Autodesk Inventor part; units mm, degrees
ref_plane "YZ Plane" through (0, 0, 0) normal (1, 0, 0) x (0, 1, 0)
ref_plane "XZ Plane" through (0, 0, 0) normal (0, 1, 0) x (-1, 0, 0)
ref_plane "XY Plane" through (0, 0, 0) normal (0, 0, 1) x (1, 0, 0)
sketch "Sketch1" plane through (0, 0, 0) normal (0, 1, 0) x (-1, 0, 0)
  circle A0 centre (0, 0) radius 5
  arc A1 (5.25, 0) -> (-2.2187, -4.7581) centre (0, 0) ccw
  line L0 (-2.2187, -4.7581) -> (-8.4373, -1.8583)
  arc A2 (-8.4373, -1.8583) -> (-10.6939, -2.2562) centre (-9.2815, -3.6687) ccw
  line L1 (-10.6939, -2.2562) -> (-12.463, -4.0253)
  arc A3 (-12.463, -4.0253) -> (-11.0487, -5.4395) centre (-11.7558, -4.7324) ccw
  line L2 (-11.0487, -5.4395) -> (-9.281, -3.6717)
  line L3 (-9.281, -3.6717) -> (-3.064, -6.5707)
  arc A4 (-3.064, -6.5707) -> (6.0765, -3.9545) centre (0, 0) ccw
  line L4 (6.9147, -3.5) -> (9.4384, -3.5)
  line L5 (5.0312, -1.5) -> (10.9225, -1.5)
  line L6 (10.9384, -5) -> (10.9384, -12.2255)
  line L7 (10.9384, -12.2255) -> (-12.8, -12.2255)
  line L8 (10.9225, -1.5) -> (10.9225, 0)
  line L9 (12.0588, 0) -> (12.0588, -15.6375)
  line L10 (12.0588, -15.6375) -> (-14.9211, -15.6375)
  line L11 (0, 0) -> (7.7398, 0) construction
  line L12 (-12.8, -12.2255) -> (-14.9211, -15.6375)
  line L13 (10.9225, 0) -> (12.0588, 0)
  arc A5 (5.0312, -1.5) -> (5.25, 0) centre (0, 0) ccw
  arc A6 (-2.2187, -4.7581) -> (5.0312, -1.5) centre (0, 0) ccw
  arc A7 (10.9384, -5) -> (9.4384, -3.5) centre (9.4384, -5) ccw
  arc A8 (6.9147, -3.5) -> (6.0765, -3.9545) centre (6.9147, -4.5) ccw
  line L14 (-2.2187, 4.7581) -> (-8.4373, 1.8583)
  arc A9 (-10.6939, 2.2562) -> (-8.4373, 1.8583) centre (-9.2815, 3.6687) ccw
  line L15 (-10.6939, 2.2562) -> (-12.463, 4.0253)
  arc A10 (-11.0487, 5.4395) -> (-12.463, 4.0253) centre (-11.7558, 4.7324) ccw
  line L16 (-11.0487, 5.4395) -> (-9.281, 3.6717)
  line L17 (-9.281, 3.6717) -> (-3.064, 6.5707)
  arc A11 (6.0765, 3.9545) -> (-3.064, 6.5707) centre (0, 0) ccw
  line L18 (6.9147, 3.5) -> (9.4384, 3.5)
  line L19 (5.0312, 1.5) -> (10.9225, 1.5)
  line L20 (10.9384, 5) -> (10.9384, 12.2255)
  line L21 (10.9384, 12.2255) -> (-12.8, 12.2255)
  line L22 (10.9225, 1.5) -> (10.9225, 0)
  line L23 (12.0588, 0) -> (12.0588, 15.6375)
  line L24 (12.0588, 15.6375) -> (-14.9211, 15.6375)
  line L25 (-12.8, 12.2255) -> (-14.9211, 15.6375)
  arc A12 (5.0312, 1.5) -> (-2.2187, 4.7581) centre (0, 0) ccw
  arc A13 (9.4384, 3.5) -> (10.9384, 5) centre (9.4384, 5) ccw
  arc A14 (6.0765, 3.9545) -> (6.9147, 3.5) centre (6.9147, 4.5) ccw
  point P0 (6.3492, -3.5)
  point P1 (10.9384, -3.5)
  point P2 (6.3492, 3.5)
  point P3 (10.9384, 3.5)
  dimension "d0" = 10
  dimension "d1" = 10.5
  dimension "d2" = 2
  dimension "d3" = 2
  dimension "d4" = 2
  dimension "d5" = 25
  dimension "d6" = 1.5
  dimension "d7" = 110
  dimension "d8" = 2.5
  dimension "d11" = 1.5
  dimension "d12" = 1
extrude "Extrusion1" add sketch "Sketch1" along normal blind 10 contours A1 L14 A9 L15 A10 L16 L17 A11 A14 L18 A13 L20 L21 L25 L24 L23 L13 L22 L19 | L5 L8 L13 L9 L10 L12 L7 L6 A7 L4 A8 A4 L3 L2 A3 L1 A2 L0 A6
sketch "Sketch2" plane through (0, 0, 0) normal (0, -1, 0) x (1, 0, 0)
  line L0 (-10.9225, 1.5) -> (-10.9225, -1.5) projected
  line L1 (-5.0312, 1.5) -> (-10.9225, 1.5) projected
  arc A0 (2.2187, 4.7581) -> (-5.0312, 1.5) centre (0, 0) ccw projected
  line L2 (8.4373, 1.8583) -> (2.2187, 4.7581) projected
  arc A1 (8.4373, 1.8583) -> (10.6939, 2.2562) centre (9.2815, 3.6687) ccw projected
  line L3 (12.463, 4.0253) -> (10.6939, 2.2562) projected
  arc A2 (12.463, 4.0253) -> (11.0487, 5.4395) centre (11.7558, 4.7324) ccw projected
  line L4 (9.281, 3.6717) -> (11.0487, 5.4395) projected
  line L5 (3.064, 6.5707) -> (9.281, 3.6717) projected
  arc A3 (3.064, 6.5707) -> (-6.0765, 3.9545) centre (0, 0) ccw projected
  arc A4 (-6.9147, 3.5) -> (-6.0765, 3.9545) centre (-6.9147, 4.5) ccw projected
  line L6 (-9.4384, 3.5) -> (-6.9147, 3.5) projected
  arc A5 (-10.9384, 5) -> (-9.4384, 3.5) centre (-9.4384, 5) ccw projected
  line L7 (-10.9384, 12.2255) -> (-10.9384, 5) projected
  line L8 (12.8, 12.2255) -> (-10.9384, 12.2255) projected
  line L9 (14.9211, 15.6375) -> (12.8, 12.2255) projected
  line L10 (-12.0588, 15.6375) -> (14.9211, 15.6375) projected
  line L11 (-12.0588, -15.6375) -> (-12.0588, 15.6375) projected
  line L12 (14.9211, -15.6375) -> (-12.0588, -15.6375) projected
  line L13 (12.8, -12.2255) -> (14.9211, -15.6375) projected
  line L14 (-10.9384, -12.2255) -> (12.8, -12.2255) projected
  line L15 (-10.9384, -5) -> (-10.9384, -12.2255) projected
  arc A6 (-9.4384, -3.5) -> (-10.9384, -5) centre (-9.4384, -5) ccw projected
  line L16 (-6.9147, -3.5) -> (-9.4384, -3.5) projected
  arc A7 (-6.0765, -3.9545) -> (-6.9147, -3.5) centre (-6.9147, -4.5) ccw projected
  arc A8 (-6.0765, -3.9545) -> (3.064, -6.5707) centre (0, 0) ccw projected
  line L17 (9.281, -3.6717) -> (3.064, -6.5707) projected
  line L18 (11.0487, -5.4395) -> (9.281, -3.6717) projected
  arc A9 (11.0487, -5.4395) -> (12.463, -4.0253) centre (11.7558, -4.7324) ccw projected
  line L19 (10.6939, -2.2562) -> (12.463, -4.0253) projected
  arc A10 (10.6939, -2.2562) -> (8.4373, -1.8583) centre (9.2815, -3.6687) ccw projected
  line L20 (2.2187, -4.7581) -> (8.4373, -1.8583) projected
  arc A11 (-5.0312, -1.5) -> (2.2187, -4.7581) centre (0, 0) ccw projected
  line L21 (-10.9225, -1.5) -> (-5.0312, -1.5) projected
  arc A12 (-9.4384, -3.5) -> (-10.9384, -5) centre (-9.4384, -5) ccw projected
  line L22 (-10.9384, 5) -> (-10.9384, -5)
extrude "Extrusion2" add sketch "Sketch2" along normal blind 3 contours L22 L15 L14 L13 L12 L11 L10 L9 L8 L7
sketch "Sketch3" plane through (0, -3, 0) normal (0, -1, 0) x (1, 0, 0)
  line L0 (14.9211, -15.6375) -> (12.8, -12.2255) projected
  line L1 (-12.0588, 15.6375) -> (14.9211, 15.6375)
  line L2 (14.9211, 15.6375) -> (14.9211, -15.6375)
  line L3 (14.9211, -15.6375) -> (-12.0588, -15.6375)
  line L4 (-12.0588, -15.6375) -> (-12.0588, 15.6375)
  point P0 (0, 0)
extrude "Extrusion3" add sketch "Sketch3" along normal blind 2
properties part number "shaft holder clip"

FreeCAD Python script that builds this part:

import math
import FreeCAD as App
import Part
import Sketcher

V = App.Vector
Q = App.Units.Quantity

doc = App.newDocument("Part")
body = doc.addObject("PartDesign::Body", "Body")

# Sketch on XZ plane
sketch1 = body.newObject("Sketcher::SketchObject", "Sketch")
sketch1.AttachmentSupport = (doc.getObject("XZ_Plane"), [""])
sketch1.MapMode = "FlatFace"
sketch1.addGeometry(Part.ArcOfCircle(Part.Circle(V(0, 0, 0), V(0, 0, 1), 5.2), math.radians(65), math.radians(163)), False)
sketch1.addGeometry(Part.LineSegment(V(-5, 1.5, 0), V(-10.9, 1.5, 0)), False)
sketch1.addGeometry(Part.LineSegment(V(-10.9, 1.5, 0), V(-10.9, -1.5, 0)), False)
sketch1.addGeometry(Part.LineSegment(V(-10.9, -1.5, 0), V(-5, -1.5, 0)), False)
sketch1.addGeometry(Part.ArcOfCircle(Part.Circle(V(0, 0, 0), V(0, 0, 1), 5.3), math.radians(-163), math.radians(-65)), False)
sketch1.addGeometry(Part.LineSegment(V(2.2, -4.8, 0), V(8.4, -1.9, 0)), False)
sketch1.addGeometry(Part.ArcOfCircle(Part.Circle(V(9.3, -3.7, 0), V(0, 0, 1), 2), math.radians(45), math.radians(115)), False)
sketch1.addGeometry(Part.LineSegment(V(10.7, -2.3, 0), V(12.5, -4, 0)), False)
sketch1.addGeometry(Part.ArcOfCircle(Part.Circle(V(11.8, -4.7, 0), V(0, 0, 1), 1), math.radians(-135), math.radians(45)), False)
sketch1.addGeometry(Part.LineSegment(V(11, -5.4, 0), V(9.3, -3.7, 0)), False)
sketch1.addGeometry(Part.LineSegment(V(9.3, -3.7, 0), V(3.1, -6.6, 0)), False)
sketch1.addGeometry(Part.ArcOfCircle(Part.Circle(V(0, 0, 0), V(0, 0, 1), 7.2), math.radians(-147), math.radians(-65)), False)
sketch1.addGeometry(Part.ArcOfCircle(Part.Circle(V(-6.9, -4.5, 0), V(0, 0, 1), 1), math.radians(33), math.radians(90)), False)
sketch1.addGeometry(Part.LineSegment(V(-6.9, -3.5, 0), V(-9.4, -3.5, 0)), False)
sketch1.addGeometry(Part.ArcOfCircle(Part.Circle(V(-9.4, -5, 0), V(0, 0, 1), 1.5), math.radians(90), math.radians(180)), False)
sketch1.addGeometry(Part.LineSegment(V(-10.9, -5, 0), V(-10.9, -12.2, 0)), False)
sketch1.addGeometry(Part.LineSegment(V(-10.9, -12.2, 0), V(12.8, -12.2, 0)), False)
sketch1.addGeometry(Part.LineSegment(V(12.8, -12.2, 0), V(14.9, -15.6, 0)), False)
sketch1.addGeometry(Part.LineSegment(V(14.9, -15.6, 0), V(-12.1, -15.6, 0)), False)
sketch1.addGeometry(Part.LineSegment(V(-12.1, -15.6, 0), V(-12.1, 15.6, 0)), False)
sketch1.addGeometry(Part.LineSegment(V(-12.1, 15.6, 0), V(14.9, 15.6, 0)), False)
sketch1.addGeometry(Part.LineSegment(V(14.9, 15.6, 0), V(12.8, 12.2, 0)), False)
sketch1.addGeometry(Part.LineSegment(V(12.8, 12.2, 0), V(-10.9, 12.2, 0)), False)
sketch1.addGeometry(Part.LineSegment(V(-10.9, 12.2, 0), V(-10.9, 5, 0)), False)
sketch1.addGeometry(Part.ArcOfCircle(Part.Circle(V(-9.4, 5, 0), V(0, 0, 1), 1.5), math.radians(180), math.radians(270)), False)
sketch1.addGeometry(Part.LineSegment(V(-9.4, 3.5, 0), V(-6.9, 3.5, 0)), False)
sketch1.addGeometry(Part.ArcOfCircle(Part.Circle(V(-6.9, 4.5, 0), V(0, 0, 1), 1), math.radians(-90), math.radians(-33)), False)
sketch1.addGeometry(Part.ArcOfCircle(Part.Circle(V(0, 0, 0), V(0, 0, 1), 7.2), math.radians(65), math.radians(147)), False)
sketch1.addGeometry(Part.LineSegment(V(3.1, 6.6, 0), V(9.3, 3.7, 0)), False)
sketch1.addGeometry(Part.LineSegment(V(9.3, 3.7, 0), V(11, 5.4, 0)), False)
sketch1.addGeometry(Part.ArcOfCircle(Part.Circle(V(11.8, 4.7, 0), V(0, 0, 1), 1), math.radians(-45), math.radians(135)), False)
sketch1.addGeometry(Part.LineSegment(V(12.5, 4, 0), V(10.7, 2.3, 0)), False)
sketch1.addGeometry(Part.ArcOfCircle(Part.Circle(V(9.3, 3.7, 0), V(0, 0, 1), 2), math.radians(-115), math.radians(-45)), False)
sketch1.addGeometry(Part.LineSegment(V(8.4, 1.9, 0), V(2.2, 4.8, 0)), False)
sketch1.addConstraint(Sketcher.Constraint("Coincident", 0, 2, 1, 1))
sketch1.addConstraint(Sketcher.Constraint("Coincident", 1, 2, 2, 1))
sketch1.addConstraint(Sketcher.Constraint("Coincident", 2, 2, 3, 1))
sketch1.addConstraint(Sketcher.Constraint("Coincident", 3, 2, 4, 1))
sketch1.addConstraint(Sketcher.Constraint("Tangent", 4, 2, 5, 1))
sketch1.addConstraint(Sketcher.Constraint("Tangent", 5, 2, 6, 2))
sketch1.addConstraint(Sketcher.Constraint("Tangent", 6, 1, 7, 1))
sketch1.addConstraint(Sketcher.Constraint("Tangent", 7, 2, 8, 2))
sketch1.addConstraint(Sketcher.Constraint("Tangent", 8, 1, 9, 1))
sketch1.addConstraint(Sketcher.Constraint("Coincident", 9, 2, 10, 1))
sketch1.addConstraint(Sketcher.Constraint("Tangent", 10, 2, 11, 2))
sketch1.addConstraint(Sketcher.Constraint("Tangent", 11, 1, 12, 1))
sketch1.addConstraint(Sketcher.Constraint("Tangent", 12, 2, 13, 1))
sketch1.addConstraint(Sketcher.Constraint("Tangent", 13, 2, 14, 1))
sketch1.addConstraint(Sketcher.Constraint("Tangent", 14, 2, 15, 1))
sketch1.addConstraint(Sketcher.Constraint("Coincident", 15, 2, 16, 1))
sketch1.addConstraint(Sketcher.Constraint("Coincident", 16, 2, 17, 1))
sketch1.addConstraint(Sketcher.Constraint("Coincident", 17, 2, 18, 1))
sketch1.addConstraint(Sketcher.Constraint("Coincident", 18, 2, 19, 1))
sketch1.addConstraint(Sketcher.Constraint("Coincident", 19, 2, 20, 1))
sketch1.addConstraint(Sketcher.Constraint("Coincident", 20, 2, 21, 1))
sketch1.addConstraint(Sketcher.Constraint("Coincident", 21, 2, 22, 1))
sketch1.addConstraint(Sketcher.Constraint("Coincident", 22, 2, 23, 1))
sketch1.addConstraint(Sketcher.Constraint("Tangent", 23, 2, 24, 1))
sketch1.addConstraint(Sketcher.Constraint("Tangent", 24, 2, 25, 1))
sketch1.addConstraint(Sketcher.Constraint("Tangent", 25, 2, 26, 1))
sketch1.addConstraint(Sketcher.Constraint("Tangent", 26, 2, 27, 2))
sketch1.addConstraint(Sketcher.Constraint("Tangent", 27, 1, 28, 1))
sketch1.addConstraint(Sketcher.Constraint("Coincident", 28, 2, 29, 1))
sketch1.addConstraint(Sketcher.Constraint("Tangent", 29, 2, 30, 2))
sketch1.addConstraint(Sketcher.Constraint("Tangent", 30, 1, 31, 1))
sketch1.addConstraint(Sketcher.Constraint("Tangent", 31, 2, 32, 2))
sketch1.addConstraint(Sketcher.Constraint("Tangent", 32, 1, 33, 1))
sketch1.addConstraint(Sketcher.Constraint("Tangent", 33, 2, 0, 1))
sketch1.addConstraint(Sketcher.Constraint("Horizontal", 1))
sketch1.addConstraint(Sketcher.Constraint("Vertical", 2))
sketch1.addConstraint(Sketcher.Constraint("Horizontal", 3))
sketch1.addConstraint(Sketcher.Constraint("Horizontal", 13))
sketch1.addConstraint(Sketcher.Constraint("Vertical", 15))
sketch1.addConstraint(Sketcher.Constraint("Horizontal", 16))
sketch1.addConstraint(Sketcher.Constraint("Horizontal", 18))
sketch1.addConstraint(Sketcher.Constraint("Vertical", 19))
sketch1.addConstraint(Sketcher.Constraint("Horizontal", 20))
sketch1.addConstraint(Sketcher.Constraint("Horizontal", 22))
sketch1.addConstraint(Sketcher.Constraint("Vertical", 23))
sketch1.addConstraint(Sketcher.Constraint("Horizontal", 25))
sketch1.addConstraint(Sketcher.Constraint("Coincident", 0, 3, -1, 1))
sketch1.addConstraint(Sketcher.Constraint("Coincident", 4, 3, -1, 1))
sketch1.addConstraint(Sketcher.Constraint("Coincident", 11, 3, -1, 1))
sketch1.addConstraint(Sketcher.Constraint("Coincident", 27, 3, -1, 1))
sketch1.addConstraint(Sketcher.Constraint("Equal", 0, 4))
sketch1.addConstraint(Sketcher.Constraint("Equal", 8, 12))
sketch1.addConstraint(Sketcher.Constraint("Equal", 14, 24))
sketch1.addConstraint(Sketcher.Constraint("Equal", 12, 26))
sketch1.addConstraint(Sketcher.Constraint("Equal", 11, 27))
sketch1.addConstraint(Sketcher.Constraint("Equal", 26, 30))
sketch1.addConstraint(Sketcher.Constraint("Equal", 6, 32))
sketch1.addConstraint(Sketcher.Constraint("Symmetric", 14, 3, 24, 3, -1))
sketch1.addConstraint(Sketcher.Constraint("Symmetric", 8, 3, 30, 3, -1))
sketch1.addConstraint(Sketcher.Constraint("Symmetric", 6, 3, 32, 3, -1))
sketch1.addConstraint(Sketcher.Constraint("Symmetric", 17, 2, 20, 2, -1))
sketch1.addConstraint(Sketcher.Constraint("Symmetric", 16, 2, 21, 2, -1))
sketch1.addConstraint(Sketcher.Constraint("Symmetric", 9, 2, 28, 2, -1))
sketch1.addConstraint(Sketcher.Constraint("Parallel", 7, 9))
sketch1.addConstraint(Sketcher.Constraint("Parallel", 5, 10))
sketch1.addConstraint(Sketcher.Constraint("Perpendicular", 9, 29))
sketch1.addConstraint(Sketcher.Constraint("Vertical", 0, 2, 3, 2))
sketch1.addConstraint(Sketcher.Constraint("Radius", 8, Q("1 mm")))
sketch1.addConstraint(Sketcher.Constraint("Radius", 14, Q("1.5 mm")))
sketch1.addConstraint(Sketcher.Constraint("Angle", 5, Q("25.0001 deg")))
sketch1.addConstraint(Sketcher.Constraint("Radius", 0, Q("5.25 mm")))
sketch1.addConstraint(Sketcher.Constraint("DistanceY", 14, 3, 24, 3, Q("10 mm")))
sketch1.addConstraint(Sketcher.Constraint("DistanceY", 12, 2, 3, 2, Q("2 mm")))
sketch1.addConstraint(Sketcher.Constraint("Distance", 9, Q("2.5 mm")))
sketch1.addConstraint(Sketcher.Constraint("Radius", 11, Q("7.25 mm")))
sketch1.addConstraint(Sketcher.Constraint("DistanceX", 18, 2, 18, 1, Q("26.98 mm")))
sketch1.addConstraint(Sketcher.Constraint("DistanceX", -1, 1, 16, 2, Q("12.8 mm")))
sketch1.addConstraint(Sketcher.Constraint("Radius", 6, Q("1.9976 mm")))
sketch1.addConstraint(Sketcher.Constraint("DistanceY", 19, 1, 19, 2, Q("31.275 mm")))
sketch1.addConstraint(Sketcher.Constraint("DistanceX", 14, 3, 6, 3, Q("18.72 mm")))
sketch1.addConstraint(Sketcher.Constraint("DistanceX", 9, 2, 17, 2, Q("5.64 mm")))
sketch1.addConstraint(Sketcher.Constraint("DistanceY", 5, 2, 28, 2, Q("5.53 mm")))
sketch1.addConstraint(Sketcher.Constraint("DistanceX", 1, 2, 1, 1, Q("5.8913 mm")))
sketch1.addConstraint(Sketcher.Constraint("DistanceY", 15, 2, 15, 1, Q("7.2255 mm")))
pad1 = body.newObject("PartDesign::Pad", "Pad")
pad1.Profile = sketch1
pad1.Length = 10
pad1.Reversed = True

# Sketch on XZ plane
sketch2 = body.newObject("Sketcher::SketchObject", "Sketch001")
sketch2.AttachmentSupport = (doc.getObject("XZ_Plane"), [""])
sketch2.MapMode = "FlatFace"
sketch2.addGeometry(Part.LineSegment(V(-10.9, -12.2, 0), V(-10.9, 12.2, 0)), False)
sketch2.addGeometry(Part.LineSegment(V(-10.9, 12.2, 0), V(12.8, 12.2, 0)), False)
sketch2.addGeometry(Part.LineSegment(V(12.8, 12.2, 0), V(14.9, 15.6, 0)), False)
sketch2.addGeometry(Part.LineSegment(V(14.9, 15.6, 0), V(-12.1, 15.6, 0)), False)
sketch2.addGeometry(Part.LineSegment(V(-12.1, 15.6, 0), V(-12.1, -15.6, 0)), False)
sketch2.addGeometry(Part.LineSegment(V(-12.1, -15.6, 0), V(14.9, -15.6, 0)), False)
sketch2.addGeometry(Part.LineSegment(V(14.9, -15.6, 0), V(12.8, -12.2, 0)), False)
sketch2.addGeometry(Part.LineSegment(V(12.8, -12.2, 0), V(-10.9, -12.2, 0)), False)
sketch2.addConstraint(Sketcher.Constraint("Coincident", 0, 2, 1, 1))
sketch2.addConstraint(Sketcher.Constraint("Coincident", 1, 2, 2, 1))
sketch2.addConstraint(Sketcher.Constraint("Coincident", 2, 2, 3, 1))
sketch2.addConstraint(Sketcher.Constraint("Coincident", 3, 2, 4, 1))
sketch2.addConstraint(Sketcher.Constraint("Coincident", 4, 2, 5, 1))
sketch2.addConstraint(Sketcher.Constraint("Coincident", 5, 2, 6, 1))
sketch2.addConstraint(Sketcher.Constraint("Coincident", 6, 2, 7, 1))
sketch2.addConstraint(Sketcher.Constraint("Coincident", 7, 2, 0, 1))
sketch2.addConstraint(Sketcher.Constraint("Vertical", 0))
sketch2.addConstraint(Sketcher.Constraint("Horizontal", 1))
sketch2.addConstraint(Sketcher.Constraint("Horizontal", 3))
sketch2.addConstraint(Sketcher.Constraint("Vertical", 4))
sketch2.addConstraint(Sketcher.Constraint("Horizontal", 5))
sketch2.addConstraint(Sketcher.Constraint("Horizontal", 7))
sketch2.addConstraint(Sketcher.Constraint("Symmetric", 2, 2, 5, 2, -1))
sketch2.addConstraint(Sketcher.Constraint("Symmetric", 1, 2, 6, 2, -1))
sketch2.addConstraint(Sketcher.Constraint("DistanceX", 3, 2, 3, 1, Q("26.98 mm")))
sketch2.addConstraint(Sketcher.Constraint("DistanceX", -1, 1, 1, 2, Q("12.8 mm")))
sketch2.addConstraint(Sketcher.Constraint("DistanceY", 0, 1, 0, 2, Q("24.451 mm")))
sketch2.addConstraint(Sketcher.Constraint("DistanceY", 4, 2, 4, 1, Q("31.275 mm")))
sketch2.addConstraint(Sketcher.Constraint("DistanceX", 1, 1, 1, 2, Q("23.7384 mm")))
sketch2.addConstraint(Sketcher.Constraint("DistanceX", -1, 1, 2, 2, Q("14.921 mm")))
pad2 = body.newObject("PartDesign::Pad", "Pad001")
pad2.Profile = sketch2
pad2.Length = 3

# Sketch on XZ plane
sketch3 = body.newObject("Sketcher::SketchObject", "Sketch002")
sketch3.AttachmentSupport = (doc.getObject("XZ_Plane"), [""])
sketch3.MapMode = "FlatFace"
sketch3.AttachmentOffset = App.Placement(V(0, 0, 3), App.Rotation())
sketch3.addGeometry(Part.LineSegment(V(15, 16, 0), V(-12, 16, 0)), False)
sketch3.addGeometry(Part.LineSegment(V(-12, 16, 0), V(-12, -16, 0)), False)
sketch3.addGeometry(Part.LineSegment(V(-12, -16, 0), V(15, -16, 0)), False)
sketch3.addGeometry(Part.LineSegment(V(15, -16, 0), V(15, 16, 0)), False)
sketch3.addConstraint(Sketcher.Constraint("Coincident", 0, 2, 1, 1))
sketch3.addConstraint(Sketcher.Constraint("Coincident", 1, 2, 2, 1))
sketch3.addConstraint(Sketcher.Constraint("Coincident", 2, 2, 3, 1))
sketch3.addConstraint(Sketcher.Constraint("Coincident", 3, 2, 0, 1))
sketch3.addConstraint(Sketcher.Constraint("Horizontal", 0))
sketch3.addConstraint(Sketcher.Constraint("Vertical", 1))
sketch3.addConstraint(Sketcher.Constraint("Horizontal", 2))
sketch3.addConstraint(Sketcher.Constraint("Vertical", 3))
sketch3.addConstraint(Sketcher.Constraint("DistanceX", 0, 2, 0, 1, Q("26.98 mm")))
sketch3.addConstraint(Sketcher.Constraint("DistanceY", 1, 2, 1, 1, Q("31.275 mm")))
sketch3.addConstraint(Sketcher.Constraint("DistanceX", -1, 1, 2, 2, Q("14.921 mm")))
sketch3.addConstraint(Sketcher.Constraint("DistanceY", -1, 1, 0, 2, Q("15.6375 mm")))
pad3 = body.newObject("PartDesign::Pad", "Pad002")
pad3.Profile = sketch3
pad3.Length = 2

doc.recompute()
